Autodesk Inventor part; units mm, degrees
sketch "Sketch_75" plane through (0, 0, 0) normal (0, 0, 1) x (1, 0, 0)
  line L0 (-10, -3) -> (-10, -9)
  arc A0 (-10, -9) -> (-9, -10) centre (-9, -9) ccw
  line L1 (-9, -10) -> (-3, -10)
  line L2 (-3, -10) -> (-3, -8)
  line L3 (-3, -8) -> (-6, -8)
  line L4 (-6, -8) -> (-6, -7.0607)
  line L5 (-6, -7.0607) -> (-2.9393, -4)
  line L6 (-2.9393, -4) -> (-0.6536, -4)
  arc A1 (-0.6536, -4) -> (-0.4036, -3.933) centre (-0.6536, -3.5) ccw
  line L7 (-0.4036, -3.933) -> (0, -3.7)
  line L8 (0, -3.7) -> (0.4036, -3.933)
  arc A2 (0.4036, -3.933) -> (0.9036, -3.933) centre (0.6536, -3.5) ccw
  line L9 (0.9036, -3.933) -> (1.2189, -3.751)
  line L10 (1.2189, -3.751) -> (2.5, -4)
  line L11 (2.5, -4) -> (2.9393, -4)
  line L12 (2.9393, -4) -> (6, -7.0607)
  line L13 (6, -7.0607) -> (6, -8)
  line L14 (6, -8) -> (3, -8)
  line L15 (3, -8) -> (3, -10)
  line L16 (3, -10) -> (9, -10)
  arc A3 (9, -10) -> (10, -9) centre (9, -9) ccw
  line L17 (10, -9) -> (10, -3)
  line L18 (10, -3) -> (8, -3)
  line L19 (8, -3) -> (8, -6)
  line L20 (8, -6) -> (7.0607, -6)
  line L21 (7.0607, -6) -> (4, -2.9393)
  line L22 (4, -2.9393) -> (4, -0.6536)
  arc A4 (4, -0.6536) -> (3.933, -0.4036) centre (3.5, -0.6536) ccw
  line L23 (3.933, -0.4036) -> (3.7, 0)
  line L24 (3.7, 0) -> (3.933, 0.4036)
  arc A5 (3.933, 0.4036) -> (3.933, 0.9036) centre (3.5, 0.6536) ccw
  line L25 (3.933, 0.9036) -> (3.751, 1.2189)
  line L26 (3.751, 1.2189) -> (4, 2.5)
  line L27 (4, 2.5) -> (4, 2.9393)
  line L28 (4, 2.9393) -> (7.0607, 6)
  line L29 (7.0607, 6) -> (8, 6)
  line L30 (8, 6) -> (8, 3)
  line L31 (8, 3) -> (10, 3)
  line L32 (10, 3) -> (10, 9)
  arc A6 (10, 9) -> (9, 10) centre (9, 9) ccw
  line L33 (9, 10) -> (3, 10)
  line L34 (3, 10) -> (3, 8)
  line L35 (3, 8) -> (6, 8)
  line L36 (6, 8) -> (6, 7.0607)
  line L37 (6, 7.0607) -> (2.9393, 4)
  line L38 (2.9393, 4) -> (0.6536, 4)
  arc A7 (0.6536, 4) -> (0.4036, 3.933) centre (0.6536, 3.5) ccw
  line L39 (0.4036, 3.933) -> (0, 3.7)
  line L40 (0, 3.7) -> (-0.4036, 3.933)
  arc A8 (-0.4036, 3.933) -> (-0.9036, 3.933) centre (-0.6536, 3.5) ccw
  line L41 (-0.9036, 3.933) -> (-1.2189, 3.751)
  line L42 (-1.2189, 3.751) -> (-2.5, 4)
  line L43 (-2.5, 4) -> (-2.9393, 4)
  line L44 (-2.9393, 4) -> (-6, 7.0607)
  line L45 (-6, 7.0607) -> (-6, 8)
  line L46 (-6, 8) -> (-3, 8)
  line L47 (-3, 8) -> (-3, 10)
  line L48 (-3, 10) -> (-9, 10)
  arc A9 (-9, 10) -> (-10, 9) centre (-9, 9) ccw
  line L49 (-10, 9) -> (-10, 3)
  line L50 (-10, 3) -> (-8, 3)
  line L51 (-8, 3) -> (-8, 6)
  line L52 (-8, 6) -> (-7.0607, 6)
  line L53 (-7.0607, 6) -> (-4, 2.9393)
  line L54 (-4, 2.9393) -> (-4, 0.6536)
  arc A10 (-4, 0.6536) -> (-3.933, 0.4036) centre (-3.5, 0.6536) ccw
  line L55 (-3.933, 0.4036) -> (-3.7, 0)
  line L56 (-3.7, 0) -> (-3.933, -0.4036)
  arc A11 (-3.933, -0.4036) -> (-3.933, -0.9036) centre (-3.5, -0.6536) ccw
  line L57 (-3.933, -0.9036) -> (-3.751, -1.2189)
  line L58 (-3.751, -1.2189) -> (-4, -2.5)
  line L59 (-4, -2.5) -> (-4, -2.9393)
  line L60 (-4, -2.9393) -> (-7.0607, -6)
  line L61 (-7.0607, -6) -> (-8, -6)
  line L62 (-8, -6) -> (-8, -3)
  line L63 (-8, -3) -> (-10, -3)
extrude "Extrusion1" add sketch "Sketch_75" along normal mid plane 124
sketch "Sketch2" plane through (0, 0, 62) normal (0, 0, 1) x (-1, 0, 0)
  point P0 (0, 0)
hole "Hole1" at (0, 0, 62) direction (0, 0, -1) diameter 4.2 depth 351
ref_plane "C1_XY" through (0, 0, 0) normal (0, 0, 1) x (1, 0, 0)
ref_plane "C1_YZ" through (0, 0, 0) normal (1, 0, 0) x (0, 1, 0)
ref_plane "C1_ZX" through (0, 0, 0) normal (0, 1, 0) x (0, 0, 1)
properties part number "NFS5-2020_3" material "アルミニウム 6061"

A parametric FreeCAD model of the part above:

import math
import FreeCAD as App
import Part
import Sketcher

V = App.Vector
Q = App.Units.Quantity

doc = App.newDocument("Part")
body = doc.addObject("PartDesign::Body", "Body")

# Sketch on XY plane
sketch1 = doc.addObject("Sketcher::SketchObject", "Sketch")
body.addObject(sketch1)
sketch1.AttachmentSupport = (doc.XY_Plane, [""])
sketch1.MapMode = "FlatFace"
sketch1.addGeometry([
    Part.LineSegment(V(-8, -3, 0), V(-10, -3, 0)),  # 0
    Part.LineSegment(V(-10, -3, 0), V(-10, -9, 0)),  # 1
    Part.ArcOfCircle(Part.Circle(V(-9, -9, 0), V(0, 0, 1), 1), math.radians(180), math.radians(270)),  # 2
    Part.LineSegment(V(-9, -10, 0), V(-3, -10, 0)),  # 3
    Part.LineSegment(V(-3, -10, 0), V(-3, -8, 0)),  # 4
    Part.LineSegment(V(-3, -8, 0), V(-6, -8, 0)),  # 5
    Part.LineSegment(V(-6, -8, 0), V(-6, -7.06, 0)),  # 6
    Part.LineSegment(V(-6, -7.06, 0), V(-2.94, -4, 0)),  # 7
    Part.LineSegment(V(-2.94, -4, 0), V(-0.65, -4, 0)),  # 8
    Part.ArcOfCircle(Part.Circle(V(-0.65, -3.5, 0), V(0, 0, 1), 0.5), math.radians(-90), math.radians(-60)),  # 9
    Part.LineSegment(V(-0.4, -3.93, 0), V(0, -3.7, 0)),  # 10
    Part.LineSegment(V(0, -3.7, 0), V(0.4, -3.93, 0)),  # 11
    Part.ArcOfCircle(Part.Circle(V(0.65, -3.5, 0), V(0, 0, 1), 0.5), math.radians(-120), math.radians(-60)),  # 12
    Part.LineSegment(V(0.9, -3.93, 0), V(1.22, -3.75, 0)),  # 13
    Part.LineSegment(V(1.22, -3.75, 0), V(2.5, -4, 0)),  # 14
    Part.LineSegment(V(2.5, -4, 0), V(2.94, -4, 0)),  # 15
    Part.LineSegment(V(2.94, -4, 0), V(6, -7.06, 0)),  # 16
    Part.LineSegment(V(6, -7.06, 0), V(6, -8, 0)),  # 17
    Part.LineSegment(V(6, -8, 0), V(3, -8, 0)),  # 18
    Part.LineSegment(V(3, -8, 0), V(3, -10, 0)),  # 19
    Part.LineSegment(V(3, -10, 0), V(9, -10, 0)),  # 20
    Part.ArcOfCircle(Part.Circle(V(9, -9, 0), V(0, 0, 1), 1), math.radians(-90), math.radians(0)),  # 21
    Part.LineSegment(V(10, -9, 0), V(10, -3, 0)),  # 22
    Part.LineSegment(V(10, -3, 0), V(8, -3, 0)),  # 23
    Part.LineSegment(V(8, -3, 0), V(8, -6, 0)),  # 24
    Part.LineSegment(V(8, -6, 0), V(7.06, -6, 0)),  # 25
    Part.LineSegment(V(7.06, -6, 0), V(4, -2.94, 0)),  # 26
    Part.LineSegment(V(4, -2.94, 0), V(4, -0.65, 0)),  # 27
    Part.ArcOfCircle(Part.Circle(V(3.5, -0.65, 0), V(0, 0, 1), 0.5), math.radians(0), math.radians(30)),  # 28
    Part.LineSegment(V(3.93, -0.4, 0), V(3.7, 0, 0)),  # 29
    Part.LineSegment(V(3.7, 0, 0), V(3.93, 0.4, 0)),  # 30
    Part.ArcOfCircle(Part.Circle(V(3.5, 0.65, 0), V(0, 0, 1), 0.5), math.radians(-30), math.radians(30)),  # 31
    Part.LineSegment(V(3.93, 0.9, 0), V(3.75, 1.22, 0)),  # 32
    Part.LineSegment(V(3.75, 1.22, 0), V(4, 2.5, 0)),  # 33
    Part.LineSegment(V(4, 2.5, 0), V(4, 2.94, 0)),  # 34
    Part.LineSegment(V(4, 2.94, 0), V(7.06, 6, 0)),  # 35
    Part.LineSegment(V(7.06, 6, 0), V(8, 6, 0)),  # 36
    Part.LineSegment(V(8, 6, 0), V(8, 3, 0)),  # 37
    Part.LineSegment(V(8, 3, 0), V(10, 3, 0)),  # 38
    Part.LineSegment(V(10, 3, 0), V(10, 9, 0)),  # 39
    Part.ArcOfCircle(Part.Circle(V(9, 9, 0), V(0, 0, 1), 1), math.radians(0), math.radians(90)),  # 40
    Part.LineSegment(V(9, 10, 0), V(3, 10, 0)),  # 41
    Part.LineSegment(V(3, 10, 0), V(3, 8, 0)),  # 42
    Part.LineSegment(V(3, 8, 0), V(6, 8, 0)),  # 43
    Part.LineSegment(V(6, 8, 0), V(6, 7.06, 0)),  # 44
    Part.LineSegment(V(6, 7.06, 0), V(2.94, 4, 0)),  # 45
    Part.LineSegment(V(2.94, 4, 0), V(0.65, 4, 0)),  # 46
    Part.ArcOfCircle(Part.Circle(V(0.65, 3.5, 0), V(0, 0, 1), 0.5), math.radians(90), math.radians(120)),  # 47
    Part.LineSegment(V(0.4, 3.93, 0), V(0, 3.7, 0)),  # 48
    Part.LineSegment(V(0, 3.7, 0), V(-0.4, 3.93, 0)),  # 49
    Part.ArcOfCircle(Part.Circle(V(-0.65, 3.5, 0), V(0, 0, 1), 0.5), math.radians(60), math.radians(120)),  # 50
    Part.LineSegment(V(-0.9, 3.93, 0), V(-1.22, 3.75, 0)),  # 51
    Part.LineSegment(V(-1.22, 3.75, 0), V(-2.5, 4, 0)),  # 52
    Part.LineSegment(V(-2.5, 4, 0), V(-2.94, 4, 0)),  # 53
    Part.LineSegment(V(-2.94, 4, 0), V(-6, 7.06, 0)),  # 54
    Part.LineSegment(V(-6, 7.06, 0), V(-6, 8, 0)),  # 55
    Part.LineSegment(V(-6, 8, 0), V(-3, 8, 0)),  # 56
    Part.LineSegment(V(-3, 8, 0), V(-3, 10, 0)),  # 57
    Part.LineSegment(V(-3, 10, 0), V(-9, 10, 0)),  # 58
    Part.ArcOfCircle(Part.Circle(V(-9, 9, 0), V(0, 0, 1), 1), math.radians(90), math.radians(180)),  # 59
    Part.LineSegment(V(-10, 9, 0), V(-10, 3, 0)),  # 60
    Part.LineSegment(V(-10, 3, 0), V(-8, 3, 0)),  # 61
    Part.LineSegment(V(-8, 3, 0), V(-8, 6, 0)),  # 62
    Part.LineSegment(V(-8, 6, 0), V(-7.06, 6, 0)),  # 63
    Part.LineSegment(V(-7.06, 6, 0), V(-4, 2.94, 0)),  # 64
    Part.LineSegment(V(-4, 2.94, 0), V(-4, 0.65, 0)),  # 65
    Part.ArcOfCircle(Part.Circle(V(-3.5, 0.65, 0), V(0, 0, 1), 0.5), math.radians(180), math.radians(210)),  # 66
    Part.LineSegment(V(-3.93, 0.4, 0), V(-3.7, 0, 0)),  # 67
    Part.LineSegment(V(-3.7, 0, 0), V(-3.93, -0.4, 0)),  # 68
    Part.ArcOfCircle(Part.Circle(V(-3.5, -0.65, 0), V(0, 0, 1), 0.5), math.radians(150), math.radians(210)),  # 69
    Part.LineSegment(V(-3.93, -0.9, 0), V(-3.75, -1.22, 0)),  # 70
    Part.LineSegment(V(-3.75, -1.22, 0), V(-4, -2.5, 0)),  # 71
    Part.LineSegment(V(-4, -2.5, 0), V(-4, -2.94, 0)),  # 72
    Part.LineSegment(V(-4, -2.94, 0), V(-7.06, -6, 0)),  # 73
    Part.LineSegment(V(-7.06, -6, 0), V(-8, -6, 0)),  # 74
    Part.LineSegment(V(-8, -6, 0), V(-8, -3, 0)),  # 75
], False)
sketch1.addConstraint([
    Sketcher.Constraint("Coincident", 0, 2, 1, 1),
    Sketcher.Constraint("Tangent", 1, 2, 2, 1),
    Sketcher.Constraint("Tangent", 2, 2, 3, 1),
    Sketcher.Constraint("Coincident", 3, 2, 4, 1),
    Sketcher.Constraint("Coincident", 4, 2, 5, 1),
    Sketcher.Constraint("Coincident", 5, 2, 6, 1),
    Sketcher.Constraint("Coincident", 6, 2, 7, 1),
    Sketcher.Constraint("Coincident", 7, 2, 8, 1),
    Sketcher.Constraint("Tangent", 8, 2, 9, 1),
    Sketcher.Constraint("Tangent", 9, 2, 10, 1),
    Sketcher.Constraint("Coincident", 10, 2, 11, 1),
    Sketcher.Constraint("Tangent", 11, 2, 12, 1),
    Sketcher.Constraint("Tangent", 12, 2, 13, 1),
    Sketcher.Constraint("Coincident", 13, 2, 14, 1),
    Sketcher.Constraint("Coincident", 14, 2, 15, 1),
    Sketcher.Constraint("Coincident", 15, 2, 16, 1),
    Sketcher.Constraint("Coincident", 16, 2, 17, 1),
    Sketcher.Constraint("Coincident", 17, 2, 18, 1),
    Sketcher.Constraint("Coincident", 18, 2, 19, 1),
    Sketcher.Constraint("Coincident", 19, 2, 20, 1),
    Sketcher.Constraint("Tangent", 20, 2, 21, 1),
    Sketcher.Constraint("Tangent", 21, 2, 22, 1),
    Sketcher.Constraint("Coincident", 22, 2, 23, 1),
    Sketcher.Constraint("Coincident", 23, 2, 24, 1),
    Sketcher.Constraint("Coincident", 24, 2, 25, 1),
    Sketcher.Constraint("Coincident", 25, 2, 26, 1),
    Sketcher.Constraint("Coincident", 26, 2, 27, 1),
    Sketcher.Constraint("Tangent", 27, 2, 28, 1),
    Sketcher.Constraint("Tangent", 28, 2, 29, 1),
    Sketcher.Constraint("Coincident", 29, 2, 30, 1),
    Sketcher.Constraint("Tangent", 30, 2, 31, 1),
    Sketcher.Constraint("Tangent", 31, 2, 32, 1),
    Sketcher.Constraint("Coincident", 32, 2, 33, 1),
    Sketcher.Constraint("Coincident", 33, 2, 34, 1),
    Sketcher.Constraint("Coincident", 34, 2, 35, 1),
    Sketcher.Constraint("Coincident", 35, 2, 36, 1),
    Sketcher.Constraint("Coincident", 36, 2, 37, 1),
    Sketcher.Constraint("Coincident", 37, 2, 38, 1),
    Sketcher.Constraint("Coincident", 38, 2, 39, 1),
    Sketcher.Constraint("Tangent", 39, 2, 40, 1),
    Sketcher.Constraint("Tangent", 40, 2, 41, 1),
    Sketcher.Constraint("Coincident", 41, 2, 42, 1),
    Sketcher.Constraint("Coincident", 42, 2, 43, 1),
    Sketcher.Constraint("Coincident", 43, 2, 44, 1),
    Sketcher.Constraint("Coincident", 44, 2, 45, 1),
    Sketcher.Constraint("Coincident", 45, 2, 46, 1),
    Sketcher.Constraint("Tangent", 46, 2, 47, 1),
    Sketcher.Constraint("Tangent", 47, 2, 48, 1),
    Sketcher.Constraint("Coincident", 48, 2, 49, 1),
    Sketcher.Constraint("Tangent", 49, 2, 50, 1),
    Sketcher.Constraint("Tangent", 50, 2, 51, 1),
    Sketcher.Constraint("Coincident", 51, 2, 52, 1),
    Sketcher.Constraint("Coincident", 52, 2, 53, 1),
    Sketcher.Constraint("Coincident", 53, 2, 54, 1),
    Sketcher.Constraint("Coincident", 54, 2, 55, 1),
    Sketcher.Constraint("Coincident", 55, 2, 56, 1),
    Sketcher.Constraint("Coincident", 56, 2, 57, 1),
    Sketcher.Constraint("Coincident", 57, 2, 58, 1),
    Sketcher.Constraint("Tangent", 58, 2, 59, 1),
    Sketcher.Constraint("Tangent", 59, 2, 60, 1),
    Sketcher.Constraint("Coincident", 60, 2, 61, 1),
    Sketcher.Constraint("Coincident", 61, 2, 62, 1),
    Sketcher.Constraint("Coincident", 62, 2, 63, 1),
    Sketcher.Constraint("Coincident", 63, 2, 64, 1),
    Sketcher.Constraint("Coincident", 64, 2, 65, 1),
    Sketcher.Constraint("Tangent", 65, 2, 66, 1),
    Sketcher.Constraint("Tangent", 66, 2, 67, 1),
    Sketcher.Constraint("Coincident", 67, 2, 68, 1),
    Sketcher.Constraint("Tangent", 68, 2, 69, 1),
    Sketcher.Constraint("Tangent", 69, 2, 70, 1),
    Sketcher.Constraint("Coincident", 70, 2, 71, 1),
    Sketcher.Constraint("Coincident", 71, 2, 72, 1),
    Sketcher.Constraint("Coincident", 72, 2, 73, 1),
    Sketcher.Constraint("Coincident", 73, 2, 74, 1),
    Sketcher.Constraint("Coincident", 74, 2, 75, 1),
    Sketcher.Constraint("Coincident", 75, 2, 0, 1),
    Sketcher.Constraint("Horizontal", 0),
    Sketcher.Constraint("Vertical", 1),
    Sketcher.Constraint("Horizontal", 3),
    Sketcher.Constraint("Vertical", 4),
    Sketcher.Constraint("Horizontal", 5),
    Sketcher.Constraint("Vertical", 6),
    Sketcher.Constraint("Horizontal", 8),
    Sketcher.Constraint("Horizontal", 15),
    Sketcher.Constraint("Vertical", 17),
    Sketcher.Constraint("Horizontal", 18),
    Sketcher.Constraint("Vertical", 19),
    Sketcher.Constraint("Horizontal", 20),
    Sketcher.Constraint("Vertical", 22),
    Sketcher.Constraint("Horizontal", 23),
    Sketcher.Constraint("Vertical", 24),
    Sketcher.Constraint("Horizontal", 25),
    Sketcher.Constraint("Vertical", 27),
    Sketcher.Constraint("Vertical", 34),
    Sketcher.Constraint("Horizontal", 36),
    Sketcher.Constraint("Vertical", 37),
    Sketcher.Constraint("Horizontal", 38),
    Sketcher.Constraint("Vertical", 39),
    Sketcher.Constraint("Horizontal", 41),
    Sketcher.Constraint("Vertical", 42),
    Sketcher.Constraint("Horizontal", 43),
    Sketcher.Constraint("Vertical", 44),
    Sketcher.Constraint("Horizontal", 46),
    Sketcher.Constraint("Horizontal", 53),
    Sketcher.Constraint("Vertical", 55),
    Sketcher.Constraint("Horizontal", 56),
    Sketcher.Constraint("Vertical", 57),
    Sketcher.Constraint("Horizontal", 58),
    Sketcher.Constraint("Vertical", 60),
    Sketcher.Constraint("Horizontal", 61),
    Sketcher.Constraint("Vertical", 62),
    Sketcher.Constraint("Horizontal", 63),
    Sketcher.Constraint("Vertical", 65),
    Sketcher.Constraint("Vertical", 72),
    Sketcher.Constraint("Horizontal", 74),
    Sketcher.Constraint("Vertical", 75),
    Sketcher.Constraint("Equal", 9, 12),
    Sketcher.Constraint("Equal", 2, 21),
    Sketcher.Constraint("Equal", 12, 28),
    Sketcher.Constraint("Equal", 28, 31),
    Sketcher.Constraint("Equal", 21, 40),
    Sketcher.Constraint("Equal", 31, 47),
    Sketcher.Constraint("Equal", 47, 50),
    Sketcher.Constraint("Equal", 40, 59),
    Sketcher.Constraint("Equal", 50, 66),
    Sketcher.Constraint("Equal", 66, 69),
    Sketcher.Constraint("Symmetric", 2, 3, 40, 3, -1, 1),
    Sketcher.Constraint("Symmetric", 9, 3, 47, 3, -1, 1),
    Sketcher.Constraint("Symmetric", 12, 3, 50, 3, -1, 1),
    Sketcher.Constraint("Symmetric", 21, 3, 59, 3, -1, 1),
    Sketcher.Constraint("Symmetric", 28, 3, 66, 3, -1, 1),
    Sketcher.Constraint("Symmetric", 31, 3, 69, 3, -1, 1),
    Sketcher.Constraint("Symmetric", 4, 2, 42, 2, -1, 1),
    Sketcher.Constraint("Symmetric", 6, 2, 44, 2, -1, 1),
    Sketcher.Constraint("Symmetric", 10, 2, 48, 2, -1, 1),
    Sketcher.Constraint("Symmetric", 13, 2, 51, 2, -1, 1),
    Sketcher.Constraint("Symmetric", 14, 2, 52, 2, -1, 1),
    Sketcher.Constraint("Symmetric", 16, 2, 54, 2, -1, 1),
    Sketcher.Constraint("Symmetric", 18, 2, 56, 2, -1, 1),
    Sketcher.Constraint("Symmetric", 23, 2, 61, 2, -1, 1),
    Sketcher.Constraint("Symmetric", 25, 2, 63, 2, -1, 1),
    Sketcher.Constraint("Symmetric", 29, 2, 67, 2, -1, 1),
    Sketcher.Constraint("Symmetric", 32, 2, 70, 2, -1, 1),
    Sketcher.Constraint("Symmetric", 33, 2, 71, 2, -1, 1),
    Sketcher.Constraint("Symmetric", 35, 2, 73, 2, -1, 1),
    Sketcher.Constraint("Symmetric", 37, 2, 75, 2, -1, 1),
    Sketcher.Constraint("Symmetric", 9, 3, 12, 3, -2),
    Sketcher.Constraint("Symmetric", 2, 3, 21, 3, -2),
    Sketcher.Constraint("Symmetric", 31, 3, 66, 3, -2),
    Sketcher.Constraint("Symmetric", 7, 2, 15, 2, -2),
    Sketcher.Constraint("Symmetric", 6, 2, 16, 2, -2),
    Sketcher.Constraint("Symmetric", 4, 2, 18, 2, -2),
    Sketcher.Constraint("Symmetric", 37, 2, 61, 2, -2),
    Sketcher.Constraint("Symmetric", 35, 2, 63, 2, -2),
    Sketcher.Constraint("Symmetric", 34, 2, 64, 2, -2),
    Sketcher.Constraint("PointOnObject", 10, 2, -2),
    Sketcher.Constraint("PointOnObject", 29, 2, -1),
    Sketcher.Constraint("Parallel", 10, 13),
    Sketcher.Constraint("Perpendicular", 7, 16),
    Sketcher.Constraint("Parallel", 16, 26),
    Sketcher.Constraint("Perpendicular", 13, 29),
    Sketcher.Constraint("Parallel", 29, 32),
    Sketcher.Constraint("Perpendicular", 14, 33),
    Sketcher.Constraint("Perpendicular", 26, 35),
    Sketcher.Constraint("Parallel", 35, 45),
    Sketcher.Constraint("Perpendicular", 45, 54),
    Sketcher.Constraint("Perpendicular", 64, 73),
    Sketcher.Constraint("Equal", 58, 1),
    Sketcher.Constraint("Equal", 61, 4),
    Sketcher.Constraint("Equal", 74, 6),
    Sketcher.Constraint("Equal", 56, 24),
    Sketcher.Constraint("Equal", 46, 27),
    Sketcher.Constraint("Equal", 53, 34),
    Sketcher.Constraint("Equal", 16, 26),
    Sketcher.Constraint("Equal", 11, 29),
    Sketcher.Constraint("Radius", 2, Q("1 mm")),
    Sketcher.Constraint("Radius", 9, Q("0.5 mm")),
    Sketcher.Constraint("DistanceX", 0, 2, 0, 1, Q("2 mm")),
    Sketcher.Constraint("DistanceX", 3, 1, 3, 2, Q("6 mm")),
    Sketcher.Constraint("DistanceX", 5, 2, 5, 1, Q("3 mm")),
    Sketcher.Constraint("Angle", 14, Q("-10.999 deg")),
    Sketcher.Constraint("DistanceX", 2, 3, -1, 1, Q("9 mm")),
    Sketcher.Constraint("DistanceY", 7, 2, -1, 1, Q("4 mm")),
    Sketcher.Constraint("DistanceY", 10, 2, -1, 1, Q("3.7 mm")),
    Sketcher.Constraint("DistanceX", -1, 1, 14, 2, Q("2.5 mm")),
    Sketcher.Constraint("Distance", 10, Q("0.466 mm")),
    Sketcher.Constraint("DistanceX", 8, 1, 8, 2, Q("2.2857 mm")),
])
pad1 = doc.addObject("PartDesign::Pad", "Pad")
body.addObject(pad1)
pad1.Profile = sketch1
pad1.Length = 124
pad1.Midplane = True

# Sketch on XY plane
sketch2 = doc.addObject("Sketcher::SketchObject", "Sketch001")
body.addObject(sketch2)
sketch2.AttachmentSupport = (doc.XY_Plane, [""])
sketch2.MapMode = "FlatFace"
sketch2.AttachmentOffset = App.Placement(V(0, 0, 62), App.Rotation())
sketch2.addGeometry(Part.Circle(V(0, 0, 0), V(0, 0, 1), 2.1), False)
sketch2.addConstraint([
    Sketcher.Constraint("Coincident", 0, 3, -1, 1),
    Sketcher.Constraint("Diameter", 0, Q("4.2 mm")),
])
doc.recompute()
hole = doc.addObject("PartDesign::Hole", "Hole")
body.addObject(hole)
hole.Profile = sketch2
hole.ThreadType = "None"
hole.Diameter = 4.2
hole.DepthType = "Dimension"
hole.Depth = 351
hole.DrillPoint = "Flat"

doc.recompute()
